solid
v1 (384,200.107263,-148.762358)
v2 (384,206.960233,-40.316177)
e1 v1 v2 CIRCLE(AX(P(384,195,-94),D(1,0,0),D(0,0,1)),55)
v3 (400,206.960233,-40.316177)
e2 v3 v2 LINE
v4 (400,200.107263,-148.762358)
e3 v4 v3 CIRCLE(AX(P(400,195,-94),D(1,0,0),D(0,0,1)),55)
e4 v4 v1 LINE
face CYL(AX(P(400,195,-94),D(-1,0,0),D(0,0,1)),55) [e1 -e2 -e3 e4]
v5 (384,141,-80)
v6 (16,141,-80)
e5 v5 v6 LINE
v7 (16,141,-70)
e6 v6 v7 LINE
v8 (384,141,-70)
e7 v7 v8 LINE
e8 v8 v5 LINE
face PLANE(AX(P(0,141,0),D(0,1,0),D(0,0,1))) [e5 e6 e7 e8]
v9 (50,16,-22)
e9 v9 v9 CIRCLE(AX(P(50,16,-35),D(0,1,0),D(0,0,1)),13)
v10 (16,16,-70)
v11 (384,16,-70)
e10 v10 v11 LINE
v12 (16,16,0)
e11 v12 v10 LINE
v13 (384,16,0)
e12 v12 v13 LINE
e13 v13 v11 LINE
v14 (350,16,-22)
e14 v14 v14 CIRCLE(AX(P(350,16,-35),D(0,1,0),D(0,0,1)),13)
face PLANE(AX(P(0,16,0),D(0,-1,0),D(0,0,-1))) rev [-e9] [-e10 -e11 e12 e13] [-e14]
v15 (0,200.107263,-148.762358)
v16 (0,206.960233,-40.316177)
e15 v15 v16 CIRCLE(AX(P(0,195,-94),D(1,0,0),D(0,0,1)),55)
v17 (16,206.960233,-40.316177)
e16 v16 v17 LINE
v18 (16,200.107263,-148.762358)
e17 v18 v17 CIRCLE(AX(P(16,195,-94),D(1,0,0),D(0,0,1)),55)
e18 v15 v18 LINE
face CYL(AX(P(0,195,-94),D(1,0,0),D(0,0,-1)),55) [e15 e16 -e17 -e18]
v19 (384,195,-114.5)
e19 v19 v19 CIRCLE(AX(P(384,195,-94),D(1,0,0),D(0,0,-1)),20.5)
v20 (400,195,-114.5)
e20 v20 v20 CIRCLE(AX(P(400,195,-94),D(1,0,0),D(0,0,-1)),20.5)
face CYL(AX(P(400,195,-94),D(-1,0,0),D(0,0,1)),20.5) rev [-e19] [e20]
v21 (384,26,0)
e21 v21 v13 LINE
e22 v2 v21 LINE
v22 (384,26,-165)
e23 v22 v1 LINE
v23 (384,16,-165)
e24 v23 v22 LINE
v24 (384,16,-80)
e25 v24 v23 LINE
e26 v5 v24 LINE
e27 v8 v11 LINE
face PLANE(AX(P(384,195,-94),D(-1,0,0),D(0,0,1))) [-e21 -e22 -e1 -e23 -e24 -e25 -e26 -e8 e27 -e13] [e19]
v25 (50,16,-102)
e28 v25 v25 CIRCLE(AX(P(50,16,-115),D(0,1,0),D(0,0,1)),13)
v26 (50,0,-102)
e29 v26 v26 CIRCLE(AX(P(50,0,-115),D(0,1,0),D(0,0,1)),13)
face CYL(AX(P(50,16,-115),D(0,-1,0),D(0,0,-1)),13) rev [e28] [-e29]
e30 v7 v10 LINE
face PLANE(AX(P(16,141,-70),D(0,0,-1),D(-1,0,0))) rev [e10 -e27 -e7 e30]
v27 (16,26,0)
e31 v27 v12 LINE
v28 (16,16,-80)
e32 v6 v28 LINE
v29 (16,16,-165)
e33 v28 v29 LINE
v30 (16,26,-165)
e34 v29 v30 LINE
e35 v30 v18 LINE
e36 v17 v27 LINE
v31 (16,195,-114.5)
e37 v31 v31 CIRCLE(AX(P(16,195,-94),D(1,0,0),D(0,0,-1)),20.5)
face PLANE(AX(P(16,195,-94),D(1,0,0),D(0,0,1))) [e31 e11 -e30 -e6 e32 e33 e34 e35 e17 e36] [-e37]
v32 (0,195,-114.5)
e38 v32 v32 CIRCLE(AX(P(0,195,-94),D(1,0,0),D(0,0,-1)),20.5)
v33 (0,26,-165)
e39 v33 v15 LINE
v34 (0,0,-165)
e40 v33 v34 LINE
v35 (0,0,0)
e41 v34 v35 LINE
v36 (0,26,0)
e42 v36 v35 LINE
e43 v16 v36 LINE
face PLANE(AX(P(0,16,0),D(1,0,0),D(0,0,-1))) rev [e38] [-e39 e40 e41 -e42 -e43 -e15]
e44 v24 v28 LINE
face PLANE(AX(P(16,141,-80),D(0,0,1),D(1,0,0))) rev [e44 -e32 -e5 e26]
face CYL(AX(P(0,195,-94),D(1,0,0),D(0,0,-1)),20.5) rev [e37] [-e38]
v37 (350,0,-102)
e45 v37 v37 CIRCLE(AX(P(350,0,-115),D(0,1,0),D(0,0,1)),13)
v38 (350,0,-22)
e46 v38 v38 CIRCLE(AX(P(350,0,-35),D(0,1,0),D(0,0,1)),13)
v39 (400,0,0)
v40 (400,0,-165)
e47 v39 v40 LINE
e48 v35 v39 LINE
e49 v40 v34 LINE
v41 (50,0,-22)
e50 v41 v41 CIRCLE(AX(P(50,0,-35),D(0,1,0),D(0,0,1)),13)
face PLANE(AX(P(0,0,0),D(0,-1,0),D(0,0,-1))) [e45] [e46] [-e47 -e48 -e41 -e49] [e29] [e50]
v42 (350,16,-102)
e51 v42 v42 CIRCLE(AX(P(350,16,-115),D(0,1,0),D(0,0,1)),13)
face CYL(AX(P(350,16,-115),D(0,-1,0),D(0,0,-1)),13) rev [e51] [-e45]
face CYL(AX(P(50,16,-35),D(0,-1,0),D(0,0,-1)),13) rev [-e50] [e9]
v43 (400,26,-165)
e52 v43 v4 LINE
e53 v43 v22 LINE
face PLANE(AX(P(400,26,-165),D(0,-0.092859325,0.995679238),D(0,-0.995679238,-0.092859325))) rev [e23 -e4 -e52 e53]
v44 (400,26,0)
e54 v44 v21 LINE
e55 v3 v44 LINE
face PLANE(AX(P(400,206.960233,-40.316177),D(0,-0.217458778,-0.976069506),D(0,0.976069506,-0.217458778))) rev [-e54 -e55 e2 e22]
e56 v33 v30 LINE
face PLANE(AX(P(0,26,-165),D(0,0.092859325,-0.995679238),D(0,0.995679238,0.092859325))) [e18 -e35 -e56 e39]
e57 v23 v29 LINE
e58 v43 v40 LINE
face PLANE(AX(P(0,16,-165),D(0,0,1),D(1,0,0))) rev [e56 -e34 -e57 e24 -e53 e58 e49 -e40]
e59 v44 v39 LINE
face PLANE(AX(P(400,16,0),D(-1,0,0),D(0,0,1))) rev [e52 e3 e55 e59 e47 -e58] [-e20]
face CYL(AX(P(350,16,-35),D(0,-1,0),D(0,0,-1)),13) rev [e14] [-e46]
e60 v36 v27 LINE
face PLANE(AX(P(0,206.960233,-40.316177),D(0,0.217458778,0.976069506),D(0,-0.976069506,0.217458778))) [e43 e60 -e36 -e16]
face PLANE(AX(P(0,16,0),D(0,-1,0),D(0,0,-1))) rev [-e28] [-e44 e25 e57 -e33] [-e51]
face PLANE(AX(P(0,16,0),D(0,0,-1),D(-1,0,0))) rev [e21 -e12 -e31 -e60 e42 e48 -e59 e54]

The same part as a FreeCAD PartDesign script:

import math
import FreeCAD as App
import Part
import Sketcher
from FreeCAD import Vector

doc = App.newDocument("Part")
body = doc.addObject("PartDesign::Body", "Body")

# Sketch on XZ plane
sketch1 = doc.addObject("Sketcher::SketchObject", "Sketch")
body.addObject(sketch1)
sketch1.AttachmentSupport = (doc.XZ_Plane, [""])
sketch1.MapMode = "FlatFace"
sketch1.addGeometry([
    Part.LineSegment(Vector(0, -165, 0), Vector(0, 0, 0)),  # 0
    Part.LineSegment(Vector(0, 0, 0), Vector(400, 0, 0)),  # 1
    Part.LineSegment(Vector(400, 0, 0), Vector(400, -165, 0)),  # 2
    Part.LineSegment(Vector(400, -165, 0), Vector(0, -165, 0)),  # 3
    Part.Circle(Vector(50, -35, 0), Vector(0, 0, 1), 13),  # 4
    Part.Circle(Vector(350, -35, 0), Vector(0, 0, 1), 13),  # 5
    Part.Circle(Vector(50, -115, 0), Vector(0, 0, 1), 13),  # 6
    Part.Circle(Vector(350, -115, 0), Vector(0, 0, 1), 13),  # 7
], False)
sketch1.addConstraint([
    Sketcher.Constraint("Coincident", 0, 2, 1, 1),
    Sketcher.Constraint("Coincident", 1, 2, 2, 1),
    Sketcher.Constraint("Coincident", 2, 2, 3, 1),
    Sketcher.Constraint("Coincident", 3, 2, 0, 1),
    Sketcher.Constraint("Vertical", 0),
    Sketcher.Constraint("Horizontal", 1),
    Sketcher.Constraint("Vertical", 2),
    Sketcher.Constraint("Horizontal", 3),
    Sketcher.Constraint("Coincident", 0, 2, -1, 1),
    Sketcher.Constraint("Equal", 4, 5),
    Sketcher.Constraint("Equal", 5, 6),
    Sketcher.Constraint("Equal", 6, 7),
    Sketcher.Constraint("Horizontal", 4, 3, 5, 3),
    Sketcher.Constraint("Horizontal", 6, 3, 7, 3),
    Sketcher.Constraint("Vertical", 4, 3, 6, 3),
    Sketcher.Constraint("Vertical", 5, 3, 7, 3),
    Sketcher.Constraint("Diameter", 4, 26.0),
    Sketcher.Constraint("DistanceX", 1, 1, 1, 2, 400.0),
    Sketcher.Constraint("DistanceY", 0, 1, 0, 2, 165.0),
    Sketcher.Constraint("DistanceX", -1, 1, 4, 3, 50.0),
    Sketcher.Constraint("DistanceY", 4, 3, -1, 1, 35.0),
    Sketcher.Constraint("DistanceX", -1, 1, 5, 3, 350.0),
    Sketcher.Constraint("DistanceY", 6, 3, -1, 1, 115.0),
])
pad1 = doc.addObject("PartDesign::Pad", "Pad")
body.addObject(pad1)
pad1.Profile = sketch1
pad1.Length = 16
pad1.Reversed = True

# Sketch on XZ plane
sketch2 = doc.addObject("Sketcher::SketchObject", "Sketch001")
body.addObject(sketch2)
sketch2.AttachmentSupport = (doc.XZ_Plane, [""])
sketch2.MapMode = "FlatFace"
sketch2.AttachmentOffset = App.Placement(Vector(0, 0, -16), App.Rotation())
sketch2.addGeometry([
    Part.LineSegment(Vector(16, -80, 0), Vector(16, -70, 0)),
    Part.LineSegment(Vector(16, -70, 0), Vector(384, -70, 0)),
    Part.LineSegment(Vector(384, -70, 0), Vector(384, -80, 0)),
    Part.LineSegment(Vector(384, -80, 0), Vector(16, -80, 0)),
], False)
sketch2.addConstraint([
    Sketcher.Constraint("Coincident", 0, 2, 1, 1),
    Sketcher.Constraint("Coincident", 1, 2, 2, 1),
    Sketcher.Constraint("Coincident", 2, 2, 3, 1),
    Sketcher.Constraint("Coincident", 3, 2, 0, 1),
    Sketcher.Constraint("Vertical", 0),
    Sketcher.Constraint("Horizontal", 1),
    Sketcher.Constraint("Vertical", 2),
    Sketcher.Constraint("Horizontal", 3),
    Sketcher.Constraint("DistanceX", 1, 1, 1, 2, 368.0),
    Sketcher.Constraint("DistanceY", 0, 1, 0, 2, 10.0),
    Sketcher.Constraint("DistanceX", -1, 1, 0, 2, 16.0),
    Sketcher.Constraint("DistanceY", 0, 2, -1, 1, 70.0),
])
pad2 = doc.addObject("PartDesign::Pad", "Pad001")
body.addObject(pad2)
pad2.Profile = sketch2
pad2.Length = 125
pad2.Reversed = True

# Sketch on YZ plane
sketch3 = doc.addObject("Sketcher::SketchObject", "Sketch002")
body.addObject(sketch3)
sketch3.AttachmentSupport = (doc.YZ_Plane, [""])
sketch3.MapMode = "FlatFace"
sketch3.AttachmentOffset = App.Placement(Vector(0, 0, 384), App.Rotation())
sketch3.addGeometry([
    Part.LineSegment(Vector(16, -165, 0), Vector(26, -165, 0)),  # 0
    Part.LineSegment(Vector(26, -165, 0), Vector(200.107263, -148.762358, 0)),  # 1
    Part.ArcOfCircle(Part.Circle(Vector(195, -94, 0), Vector(0, 0, 1), 55), math.radians(-84.671877), math.radians(77.440181)),  # 2
    Part.LineSegment(Vector(206.960233, -40.316177, 0), Vector(26, 0, 0)),  # 3
    Part.LineSegment(Vector(26, 0, 0), Vector(16, 0, 0)),  # 4
    Part.LineSegment(Vector(16, 0, 0), Vector(16, -165, 0)),  # 5
    Part.Circle(Vector(195, -94, 0), Vector(0, 0, 1), 20.5),  # 6
], False)
sketch3.addConstraint([
    Sketcher.Constraint("Coincident", 0, 2, 1, 1),
    Sketcher.Constraint("Tangent", 1, 2, 2, 1),
    Sketcher.Constraint("Tangent", 2, 2, 3, 1),
    Sketcher.Constraint("Coincident", 3, 2, 4, 1),
    Sketcher.Constraint("Coincident", 4, 2, 5, 1),
    Sketcher.Constraint("Coincident", 5, 2, 0, 1),
    Sketcher.Constraint("Horizontal", 0),
    Sketcher.Constraint("Horizontal", 4),
    Sketcher.Constraint("Vertical", 5),
    Sketcher.Constraint("Coincident", 6, 3, 2, 3),
    Sketcher.Constraint("PointOnObject", 3, 2, -1),
    Sketcher.Constraint("Vertical", 0, 2, 3, 2),
    Sketcher.Constraint("Diameter", 6, 41.0),
    Sketcher.Constraint("Radius", 2, 55.0),
    Sketcher.Constraint("DistanceX", 0, 1, 0, 2, 10.0),
    Sketcher.Constraint("DistanceY", 5, 2, 5, 1, 165.0),
    Sketcher.Constraint("DistanceX", -1, 1, 2, 3, 195.0),
    Sketcher.Constraint("DistanceY", 2, 3, -1, 1, 94.0),
    Sketcher.Constraint("DistanceX", -1, 1, 0, 2, 26.0),
])
pad3 = doc.addObject("PartDesign::Pad", "Pad002")
body.addObject(pad3)
pad3.Profile = sketch3
pad3.Length = 16
doc.recompute()

datumplane = doc.addObject("PartDesign::Plane", "DatumPlane")
body.addObject(datumplane)
datumplane.AttachmentSupport = (doc.YZ_Plane, [""])
datumplane.MapMode = "FlatFace"
datumplane.AttachmentOffset = App.Placement(Vector(0, 0, 200), App.Rotation())
mirrored = doc.addObject("PartDesign::Mirrored", "Mirrored")
body.addObject(mirrored)
mirrored.Originals = [pad3]
mirrored.MirrorPlane = (datumplane, [""])
body.Tip = mirrored

doc.recompute()
